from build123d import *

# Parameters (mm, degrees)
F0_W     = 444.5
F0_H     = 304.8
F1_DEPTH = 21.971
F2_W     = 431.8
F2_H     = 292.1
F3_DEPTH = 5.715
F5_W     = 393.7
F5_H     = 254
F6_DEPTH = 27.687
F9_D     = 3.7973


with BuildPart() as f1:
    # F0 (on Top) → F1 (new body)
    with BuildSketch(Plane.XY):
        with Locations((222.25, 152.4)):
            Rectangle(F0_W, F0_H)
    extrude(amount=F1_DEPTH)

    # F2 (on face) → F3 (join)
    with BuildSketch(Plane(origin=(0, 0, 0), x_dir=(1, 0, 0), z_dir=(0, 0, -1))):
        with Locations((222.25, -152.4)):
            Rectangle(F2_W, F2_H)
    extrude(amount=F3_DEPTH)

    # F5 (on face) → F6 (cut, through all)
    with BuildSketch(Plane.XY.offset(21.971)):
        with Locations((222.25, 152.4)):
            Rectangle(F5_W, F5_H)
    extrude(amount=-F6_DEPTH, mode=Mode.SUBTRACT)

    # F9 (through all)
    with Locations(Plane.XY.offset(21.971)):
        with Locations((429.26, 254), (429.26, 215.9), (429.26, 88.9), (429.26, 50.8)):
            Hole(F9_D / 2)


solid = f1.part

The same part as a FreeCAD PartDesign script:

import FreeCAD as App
import Part
import Sketcher

V = App.Vector
Q = App.Units.Quantity


def add_polygon(sketch, points):
    """Adds a closed chain of lines whose ends are joined by coincident constraints."""
    first, n = sketch.GeometryCount, len(points)
    for a, b in zip(points, points[1:] + points[:1]):
        sketch.addGeometry(Part.LineSegment(App.Vector(*a, 0), App.Vector(*b, 0)), False)
    for i in range(n):
        sketch.addConstraint(Sketcher.Constraint("Coincident", first + i, 2, first + (i + 1) % n, 1))

doc = App.newDocument("Part")
body = doc.addObject("PartDesign::Body", "Body")

# Sketch on XY plane
sketch1 = body.newObject("Sketcher::SketchObject", "Sketch")
sketch1.AttachmentSupport = (doc.getObject("XY_Plane"), [""])
sketch1.MapMode = "FlatFace"
add_polygon(sketch1, [(0, 305), (0, 0), (444, 0), (444, 305)])  # lines 0-3
sketch1.addConstraint([
    Sketcher.Constraint("Vertical", 0),
    Sketcher.Constraint("Horizontal", 1),
    Sketcher.Constraint("Vertical", 2),
    Sketcher.Constraint("Horizontal", 3),
    Sketcher.Constraint("Coincident", 0, 2, -1, 1),
    Sketcher.Constraint("DistanceY", 0, 2, 0, 1, Q("12 in")),
    Sketcher.Constraint("DistanceX", 1, 1, 1, 2, Q("17.5 in")),
])
pad1 = body.newObject("PartDesign::Pad", "Pad")
pad1.Profile = sketch1
pad1.Length = Q("0.865 in")

# Sketch on XY plane
sketch2 = body.newObject("Sketcher::SketchObject", "Sketch001")
sketch2.AttachmentSupport = (doc.getObject("XY_Plane"), [""])
sketch2.MapMode = "FlatFace"
add_polygon(sketch2, [(6, 6), (6, 298), (438, 298), (438, 6)])  # lines 0-3
sketch2.addConstraint([
    Sketcher.Constraint("Vertical", 0),
    Sketcher.Constraint("Horizontal", 1),
    Sketcher.Constraint("Vertical", 2),
    Sketcher.Constraint("Horizontal", 3),
    Sketcher.Constraint("DistanceX", 1, 1, 1, 2, Q("17 in")),
    Sketcher.Constraint("DistanceY", 0, 1, 0, 2, Q("11.5 in")),
    Sketcher.Constraint("DistanceX", -1, 1, 0, 2, Q("0.25 in")),
    Sketcher.Constraint("DistanceY", -1, 1, 0, 2, Q("11.75 in")),
])
pad2 = body.newObject("PartDesign::Pad", "Pad001")
pad2.Profile = sketch2
pad2.Length = Q("0.225 in")
pad2.Reversed = True

# Sketch on XY plane
sketch3 = body.newObject("Sketcher::SketchObject", "Sketch002")
sketch3.AttachmentSupport = (doc.getObject("XY_Plane"), [""])
sketch3.MapMode = "FlatFace"
sketch3.AttachmentOffset = App.Placement(V(0, 0, 0.865 * 25.4), App.Rotation())
add_polygon(sketch3, [(25, 279), (25, 25), (419, 25), (419, 279)])  # lines 0-3
sketch3.addConstraint([
    Sketcher.Constraint("Vertical", 0),
    Sketcher.Constraint("Horizontal", 1),
    Sketcher.Constraint("Vertical", 2),
    Sketcher.Constraint("Horizontal", 3),
    Sketcher.Constraint("DistanceY", 0, 2, 0, 1, Q("10 in")),
    Sketcher.Constraint("DistanceX", 1, 1, 1, 2, Q("15.5 in")),
    Sketcher.Constraint("DistanceX", -1, 1, 0, 2, Q("1 in")),
    Sketcher.Constraint("DistanceY", -1, 1, 0, 2, Q("1 in")),
])
pocket1 = body.newObject("PartDesign::Pocket", "Pocket")
pocket1.Profile = sketch3
pocket1.Type = "ThroughAll"

# Sketch on XY plane
sketch4 = body.newObject("Sketcher::SketchObject", "Sketch003")
sketch4.AttachmentSupport = (doc.getObject("XY_Plane"), [""])
sketch4.MapMode = "FlatFace"
sketch4.AttachmentOffset = App.Placement(V(0, 0, 0.865 * 25.4), App.Rotation())
sketch4.addGeometry([
    Part.Circle(V(429.3, 254, 0), V(0, 0, 1), 1.9),
    Part.Circle(V(429.3, 215.9, 0), V(0, 0, 1), 1.9),
    Part.Circle(V(429.3, 88.9, 0), V(0, 0, 1), 1.9),
    Part.Circle(V(429.3, 50.8, 0), V(0, 0, 1), 1.9),
], False)
sketch4.addConstraint([
    Sketcher.Constraint("Equal", 0, 1),
    Sketcher.Constraint("Equal", 1, 2),
    Sketcher.Constraint("Equal", 2, 3),
    Sketcher.Constraint("Vertical", 0, 3, 1, 3),
    Sketcher.Constraint("Vertical", 1, 3, 2, 3),
    Sketcher.Constraint("Vertical", 2, 3, 3, 3),
    Sketcher.Constraint("DistanceY", -1, 1, 0, 3, Q("10 in")),
    Sketcher.Constraint("DistanceY", -1, 1, 3, 3, Q("2 in")),
    Sketcher.Constraint("DistanceY", 2, 3, 1, 3, Q("5 in")),
    Sketcher.Constraint("Diameter", 0, Q("0.1495 in")),
    Sketcher.Constraint("DistanceX", -1, 1, 0, 3, Q("16.9 in")),
    Sketcher.Constraint("DistanceY", -1, 1, 1, 3, Q("8.5 in")),
])
doc.recompute()
hole = body.newObject("PartDesign::Hole", "Hole")
hole.Profile = sketch4
hole.ThreadType = "None"
hole.Diameter = Q("0.1495 in")
hole.DepthType = "ThroughAll"

doc.recompute()
